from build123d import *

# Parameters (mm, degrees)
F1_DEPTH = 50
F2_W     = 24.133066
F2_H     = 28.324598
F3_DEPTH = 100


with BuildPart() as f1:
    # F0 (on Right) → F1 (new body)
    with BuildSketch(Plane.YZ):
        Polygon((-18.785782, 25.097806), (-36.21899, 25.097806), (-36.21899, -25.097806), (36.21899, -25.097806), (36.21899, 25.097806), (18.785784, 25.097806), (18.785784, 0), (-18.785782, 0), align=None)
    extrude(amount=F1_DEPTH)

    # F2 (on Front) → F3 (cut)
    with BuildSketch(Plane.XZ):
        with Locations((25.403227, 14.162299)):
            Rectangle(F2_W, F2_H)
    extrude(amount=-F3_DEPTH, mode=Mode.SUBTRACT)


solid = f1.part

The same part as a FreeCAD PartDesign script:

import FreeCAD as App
import Part
import Sketcher
from FreeCAD import Vector


def add_polygon(sketch, points):
    """Adds a closed chain of lines whose ends are joined by coincident constraints."""
    first, n = sketch.GeometryCount, len(points)
    for a, b in zip(points, points[1:] + points[:1]):
        sketch.addGeometry(Part.LineSegment(App.Vector(*a, 0), App.Vector(*b, 0)), False)
    for i in range(n):
        sketch.addConstraint(Sketcher.Constraint("Coincident", first + i, 2, first + (i + 1) % n, 1))

doc = App.newDocument("Part")
params = doc.addObject("Spreadsheet::Sheet", "Params")
for row, (alias, value) in enumerate([
    ("pad1_length", "50 mm"),
    ("pocket1_length", "100 mm"),
], start=1):
    params.set(f"A{row}", alias)
    params.set(f"B{row}", "=" + value)
    params.setAlias(f"B{row}", alias)

body = doc.addObject("PartDesign::Body", "Body")

# Sketch on YZ plane
sketch1 = body.newObject("Sketcher::SketchObject", "Sketch")
sketch1.AttachmentSupport = (doc.getObject("YZ_Plane"), [""])
sketch1.MapMode = "FlatFace"
add_polygon(sketch1, [(-19, 25), (-36, 25), (-36, -25), (36, -25), (36, 25), (19, 25), (19, 0), (-19, 0)])  # lines 0-7
sketch1.addConstraint(Sketcher.Constraint("Horizontal", 0))
sketch1.addConstraint(Sketcher.Constraint("Vertical", 1))
sketch1.addConstraint(Sketcher.Constraint("Horizontal", 2))
sketch1.addConstraint(Sketcher.Constraint("Vertical", 3))
sketch1.addConstraint(Sketcher.Constraint("Horizontal", 4))
sketch1.addConstraint(Sketcher.Constraint("Vertical", 5))
sketch1.addConstraint(Sketcher.Constraint("Horizontal", 6))
sketch1.addConstraint(Sketcher.Constraint("Vertical", 7))
sketch1.addConstraint(Sketcher.Constraint("Symmetric", 0, 2, 2, 2, -1, 1))
sketch1.addConstraint(Sketcher.Constraint("Symmetric", 5, 2, 6, 2, -1, 1))
sketch1.addConstraint(Sketcher.Constraint("Horizontal", 0, 2, 3, 2))
sketch1.addConstraint(Sketcher.Constraint("DistanceX", 2, 1, 2, 2, 72.43798))
sketch1.addConstraint(Sketcher.Constraint("DistanceY", 1, 2, 1, 1, 50.195612))
sketch1.addConstraint(Sketcher.Constraint("DistanceX", 0, 2, 0, 1, 17.433208))
pad1 = body.newObject("PartDesign::Pad", "Pad")
pad1.Profile = sketch1
pad1.setExpression("Length", "Params.pad1_length")

# Sketch on XZ plane
sketch2 = body.newObject("Sketcher::SketchObject", "Sketch001")
sketch2.AttachmentSupport = (doc.getObject("XZ_Plane"), [""])
sketch2.MapMode = "FlatFace"
add_polygon(sketch2, [(13, 28), (13, 0), (37, 0), (37, 28)])  # lines 0-3
sketch2.addConstraint(Sketcher.Constraint("Vertical", 0))
sketch2.addConstraint(Sketcher.Constraint("Horizontal", 1))
sketch2.addConstraint(Sketcher.Constraint("Vertical", 2))
sketch2.addConstraint(Sketcher.Constraint("Horizontal", 3))
sketch2.addConstraint(Sketcher.Constraint("PointOnObject", 0, 2, -1))
sketch2.addConstraint(Sketcher.Constraint("DistanceY", 0, 2, 0, 1, 28.324598))
sketch2.addConstraint(Sketcher.Constraint("DistanceX", 1, 1, 1, 2, 24.133066))
sketch2.addConstraint(Sketcher.Constraint("DistanceX", -1, 1, 1, 2, 37.46976))
pocket1 = body.newObject("PartDesign::Pocket", "Pocket")
pocket1.Profile = sketch2
pocket1.setExpression("Length", "Params.pocket1_length")

doc.recompute()
